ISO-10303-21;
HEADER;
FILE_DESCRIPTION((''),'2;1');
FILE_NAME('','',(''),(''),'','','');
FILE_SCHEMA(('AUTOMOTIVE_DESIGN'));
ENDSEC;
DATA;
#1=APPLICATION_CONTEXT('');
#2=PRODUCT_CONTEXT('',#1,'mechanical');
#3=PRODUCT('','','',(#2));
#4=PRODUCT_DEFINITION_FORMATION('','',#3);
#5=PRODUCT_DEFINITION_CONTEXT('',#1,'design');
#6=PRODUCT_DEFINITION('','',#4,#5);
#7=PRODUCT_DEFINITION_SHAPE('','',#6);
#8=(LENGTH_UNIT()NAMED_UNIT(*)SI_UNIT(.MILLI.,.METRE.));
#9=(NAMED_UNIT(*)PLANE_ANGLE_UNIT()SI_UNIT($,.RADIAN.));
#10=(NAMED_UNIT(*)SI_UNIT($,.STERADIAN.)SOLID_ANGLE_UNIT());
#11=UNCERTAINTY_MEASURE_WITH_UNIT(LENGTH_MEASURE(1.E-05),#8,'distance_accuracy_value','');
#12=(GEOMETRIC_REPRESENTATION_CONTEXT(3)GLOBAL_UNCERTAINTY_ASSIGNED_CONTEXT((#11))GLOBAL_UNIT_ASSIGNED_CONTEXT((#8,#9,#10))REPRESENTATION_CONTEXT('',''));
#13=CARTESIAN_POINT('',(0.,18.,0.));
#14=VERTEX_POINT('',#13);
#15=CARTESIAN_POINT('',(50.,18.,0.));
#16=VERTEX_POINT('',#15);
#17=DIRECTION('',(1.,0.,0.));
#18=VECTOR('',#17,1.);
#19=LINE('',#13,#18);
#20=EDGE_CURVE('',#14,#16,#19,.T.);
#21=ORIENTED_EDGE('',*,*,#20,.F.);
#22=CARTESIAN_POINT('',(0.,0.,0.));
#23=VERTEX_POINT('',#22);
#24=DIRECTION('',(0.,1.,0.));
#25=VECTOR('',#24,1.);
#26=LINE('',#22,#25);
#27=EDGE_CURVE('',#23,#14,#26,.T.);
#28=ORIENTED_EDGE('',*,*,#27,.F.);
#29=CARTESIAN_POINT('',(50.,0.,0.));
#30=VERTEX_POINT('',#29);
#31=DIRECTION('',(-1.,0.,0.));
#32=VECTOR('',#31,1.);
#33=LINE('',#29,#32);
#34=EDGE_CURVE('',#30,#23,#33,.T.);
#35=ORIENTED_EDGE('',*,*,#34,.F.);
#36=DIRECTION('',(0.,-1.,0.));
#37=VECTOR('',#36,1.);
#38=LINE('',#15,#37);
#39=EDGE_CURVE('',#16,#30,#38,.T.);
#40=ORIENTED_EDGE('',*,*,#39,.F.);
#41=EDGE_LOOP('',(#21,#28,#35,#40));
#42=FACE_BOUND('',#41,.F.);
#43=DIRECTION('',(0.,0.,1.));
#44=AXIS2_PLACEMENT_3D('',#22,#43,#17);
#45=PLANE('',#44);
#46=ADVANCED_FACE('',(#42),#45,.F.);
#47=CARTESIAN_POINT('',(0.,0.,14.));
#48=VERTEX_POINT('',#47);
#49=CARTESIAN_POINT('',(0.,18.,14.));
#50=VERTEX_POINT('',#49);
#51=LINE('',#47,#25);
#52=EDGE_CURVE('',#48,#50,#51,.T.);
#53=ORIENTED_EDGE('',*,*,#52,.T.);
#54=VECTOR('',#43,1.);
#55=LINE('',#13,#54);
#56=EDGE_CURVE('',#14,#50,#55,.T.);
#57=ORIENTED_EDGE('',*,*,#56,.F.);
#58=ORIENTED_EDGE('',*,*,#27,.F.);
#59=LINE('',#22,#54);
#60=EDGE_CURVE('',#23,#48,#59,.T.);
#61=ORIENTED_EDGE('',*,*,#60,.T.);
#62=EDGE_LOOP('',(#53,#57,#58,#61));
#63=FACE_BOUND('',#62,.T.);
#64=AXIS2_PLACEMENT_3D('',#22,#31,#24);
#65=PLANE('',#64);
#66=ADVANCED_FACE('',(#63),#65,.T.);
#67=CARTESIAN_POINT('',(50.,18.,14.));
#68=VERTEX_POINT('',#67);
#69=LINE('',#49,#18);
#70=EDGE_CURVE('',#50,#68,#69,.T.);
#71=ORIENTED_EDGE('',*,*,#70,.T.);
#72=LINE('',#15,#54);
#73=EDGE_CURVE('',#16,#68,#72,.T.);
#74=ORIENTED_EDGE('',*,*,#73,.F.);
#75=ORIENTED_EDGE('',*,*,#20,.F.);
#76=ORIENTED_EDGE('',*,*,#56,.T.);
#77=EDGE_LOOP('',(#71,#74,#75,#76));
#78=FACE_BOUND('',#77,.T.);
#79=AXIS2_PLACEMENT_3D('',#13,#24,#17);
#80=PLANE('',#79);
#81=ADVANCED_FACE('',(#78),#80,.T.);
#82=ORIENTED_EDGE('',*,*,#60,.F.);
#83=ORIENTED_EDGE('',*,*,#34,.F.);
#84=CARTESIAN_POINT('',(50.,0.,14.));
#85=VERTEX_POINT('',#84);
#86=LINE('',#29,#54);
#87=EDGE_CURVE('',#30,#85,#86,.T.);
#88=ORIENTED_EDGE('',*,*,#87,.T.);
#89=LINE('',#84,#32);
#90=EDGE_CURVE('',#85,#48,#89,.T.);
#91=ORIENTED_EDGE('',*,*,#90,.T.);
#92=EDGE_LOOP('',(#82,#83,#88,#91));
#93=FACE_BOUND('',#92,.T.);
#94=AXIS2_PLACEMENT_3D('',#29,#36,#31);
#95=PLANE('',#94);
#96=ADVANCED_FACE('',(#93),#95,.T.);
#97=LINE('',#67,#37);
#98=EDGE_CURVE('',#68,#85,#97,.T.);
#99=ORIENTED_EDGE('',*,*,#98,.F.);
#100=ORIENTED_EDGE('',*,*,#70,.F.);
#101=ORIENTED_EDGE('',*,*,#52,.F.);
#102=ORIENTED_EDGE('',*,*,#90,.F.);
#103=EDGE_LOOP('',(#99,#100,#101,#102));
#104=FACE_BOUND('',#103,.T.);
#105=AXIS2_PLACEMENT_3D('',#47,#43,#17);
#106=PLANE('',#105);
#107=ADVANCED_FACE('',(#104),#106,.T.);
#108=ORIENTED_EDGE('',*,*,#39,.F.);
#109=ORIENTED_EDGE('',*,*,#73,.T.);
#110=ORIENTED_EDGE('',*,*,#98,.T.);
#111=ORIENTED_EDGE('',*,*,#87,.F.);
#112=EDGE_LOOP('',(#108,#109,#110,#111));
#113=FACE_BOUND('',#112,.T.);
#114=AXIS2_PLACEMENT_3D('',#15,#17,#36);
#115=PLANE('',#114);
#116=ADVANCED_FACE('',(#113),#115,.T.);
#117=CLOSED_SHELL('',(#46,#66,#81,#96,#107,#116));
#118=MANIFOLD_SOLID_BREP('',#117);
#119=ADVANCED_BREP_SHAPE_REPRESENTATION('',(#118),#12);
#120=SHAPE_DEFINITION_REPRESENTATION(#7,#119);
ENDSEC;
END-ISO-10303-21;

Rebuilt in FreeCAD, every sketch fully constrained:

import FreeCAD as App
import Part
import Sketcher
from FreeCAD import Vector
Q = App.Units.Quantity


def add_polygon(sketch, points):
    """Adds a closed chain of lines whose ends are joined by coincident constraints."""
    first, n = sketch.GeometryCount, len(points)
    for a, b in zip(points, points[1:] + points[:1]):
        sketch.addGeometry(Part.LineSegment(App.Vector(*a, 0), App.Vector(*b, 0)), False)
    for i in range(n):
        sketch.addConstraint(Sketcher.Constraint("Coincident", first + i, 2, first + (i + 1) % n, 1))

doc = App.newDocument("Part")
body = doc.addObject("PartDesign::Body", "Body")

sketch1 = doc.addObject("Sketcher::SketchObject", "Sketch")
body.addObject(sketch1)
sketch1.AttachmentSupport = (doc.XY_Plane, [""])
sketch1.MapMode = "FlatFace"
add_polygon(sketch1, [(50, 18), (0, 18), (0, 0), (50, 0)])
sketch1.addConstraint([
    Sketcher.Constraint("Horizontal", 0),
    Sketcher.Constraint("Vertical", 1),
    Sketcher.Constraint("Horizontal", 2),
    Sketcher.Constraint("Vertical", 3),
    Sketcher.Constraint("Coincident", 1, 2, -1, 1),
    Sketcher.Constraint("DistanceX", 0, 2, 0, 1, Q("50 mm")),
    Sketcher.Constraint("DistanceY", 1, 2, 1, 1, Q("18 mm")),
])
pad1 = doc.addObject("PartDesign::Pad", "Pad")
body.addObject(pad1)
pad1.Profile = sketch1
pad1.Length = 14

doc.recompute()
